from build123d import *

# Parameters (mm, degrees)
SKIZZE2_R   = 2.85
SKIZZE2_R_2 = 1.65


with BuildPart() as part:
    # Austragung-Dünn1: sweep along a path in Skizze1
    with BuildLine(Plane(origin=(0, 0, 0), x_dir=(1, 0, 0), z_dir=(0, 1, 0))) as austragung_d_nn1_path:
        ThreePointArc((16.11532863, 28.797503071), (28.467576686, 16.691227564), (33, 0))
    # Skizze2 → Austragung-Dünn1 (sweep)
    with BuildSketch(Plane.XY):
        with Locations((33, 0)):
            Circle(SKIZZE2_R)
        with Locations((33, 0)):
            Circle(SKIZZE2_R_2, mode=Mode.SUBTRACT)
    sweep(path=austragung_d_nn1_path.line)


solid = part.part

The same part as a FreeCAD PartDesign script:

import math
import FreeCAD as App
import Part
import Sketcher

V = App.Vector

doc = App.newDocument("Part")
body = doc.addObject("PartDesign::Body", "Body")

sketch1 = body.newObject("Sketcher::SketchObject", "Sketch")
sketch1.AttachmentSupport = (doc.getObject("XY_Plane"), [""])
sketch1.MapMode = "FlatFace"
sketch1.addGeometry([
    Part.Circle(V(33, 0, 0), V(0, 0, 1), 2.85),
    Part.Circle(V(33, 0, 0), V(0, 0, 1), 1.65),
], False)
sketch1.addConstraint([
    Sketcher.Constraint("Coincident", 1, 3, 0, 3),
    Sketcher.Constraint("PointOnObject", 0, 3, -1),
    Sketcher.Constraint("Diameter", 0, 5.7),
    Sketcher.Constraint("Diameter", 1, 3.3),
    Sketcher.Constraint("DistanceX", -1, 1, 0, 3, 33.0),
])

sketch2 = body.newObject("Sketcher::SketchObject", "Sketch001")
sketch2.AttachmentSupport = (doc.getObject("XZ_Plane"), [""])
sketch2.MapMode = "FlatFace"
sketch2.addGeometry(Part.ArcOfCircle(Part.Circle(V(0, 0, 0), V(0, 0, 1), 33), math.radians(-60.768251), math.radians(0)), False)
sketch2.addConstraint([
    Sketcher.Constraint("Coincident", 0, 3, -1, 1),
    Sketcher.Constraint("PointOnObject", 0, 2, -1),
    Sketcher.Constraint("Radius", 0, 33.0),
    Sketcher.Constraint("DistanceX", -1, 1, 0, 1, 16.115329),
])
doc.recompute()

additivepipe = body.newObject("PartDesign::AdditivePipe", "AdditivePipe")
additivepipe.Profile = sketch1
additivepipe.Spine = (sketch2, ["Edge1"])

doc.recompute()
